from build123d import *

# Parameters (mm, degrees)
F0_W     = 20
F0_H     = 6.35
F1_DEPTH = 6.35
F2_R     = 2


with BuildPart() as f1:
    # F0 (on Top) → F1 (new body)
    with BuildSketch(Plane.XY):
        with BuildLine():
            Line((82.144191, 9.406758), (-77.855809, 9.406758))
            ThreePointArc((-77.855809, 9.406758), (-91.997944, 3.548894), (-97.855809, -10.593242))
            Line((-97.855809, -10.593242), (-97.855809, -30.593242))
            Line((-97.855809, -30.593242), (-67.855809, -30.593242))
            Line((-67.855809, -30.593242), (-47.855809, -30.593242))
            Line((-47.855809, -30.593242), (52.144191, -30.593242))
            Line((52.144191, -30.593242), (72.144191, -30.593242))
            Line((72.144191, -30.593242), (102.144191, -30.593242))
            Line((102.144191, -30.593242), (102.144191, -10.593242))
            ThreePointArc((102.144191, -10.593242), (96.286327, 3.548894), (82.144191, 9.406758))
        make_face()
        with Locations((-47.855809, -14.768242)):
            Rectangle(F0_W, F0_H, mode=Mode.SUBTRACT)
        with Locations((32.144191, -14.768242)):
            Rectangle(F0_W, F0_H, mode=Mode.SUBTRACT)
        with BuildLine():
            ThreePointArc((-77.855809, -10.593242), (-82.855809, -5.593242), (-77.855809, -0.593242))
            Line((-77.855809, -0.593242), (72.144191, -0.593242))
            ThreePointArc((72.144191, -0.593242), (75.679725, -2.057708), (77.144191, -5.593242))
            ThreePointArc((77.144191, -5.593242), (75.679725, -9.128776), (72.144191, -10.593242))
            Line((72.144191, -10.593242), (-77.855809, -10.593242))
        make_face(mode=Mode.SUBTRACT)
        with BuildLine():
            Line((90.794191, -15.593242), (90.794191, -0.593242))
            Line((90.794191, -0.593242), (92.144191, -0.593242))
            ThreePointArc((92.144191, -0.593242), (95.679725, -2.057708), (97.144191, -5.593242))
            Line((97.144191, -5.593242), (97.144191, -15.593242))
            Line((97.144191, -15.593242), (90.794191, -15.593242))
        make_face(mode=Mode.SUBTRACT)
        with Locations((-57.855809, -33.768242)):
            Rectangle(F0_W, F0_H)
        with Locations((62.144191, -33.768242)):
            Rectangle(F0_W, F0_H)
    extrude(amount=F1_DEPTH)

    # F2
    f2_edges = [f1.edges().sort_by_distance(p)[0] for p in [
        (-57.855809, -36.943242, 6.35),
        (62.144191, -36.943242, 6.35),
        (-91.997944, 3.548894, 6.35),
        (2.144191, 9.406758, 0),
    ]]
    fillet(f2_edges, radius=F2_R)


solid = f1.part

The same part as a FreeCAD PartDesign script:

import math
import FreeCAD as App
import Part
import Sketcher
Q = App.Units.Quantity


def edges_at(feature, points):
    """Names of the edges that pass closest to the given points."""
    edges = feature.Shape.Edges
    near = lambda p: min(range(len(edges)), key=lambda i: edges[i].distToShape(Part.Vertex(*p))[0])
    return sorted({f"Edge{near(p) + 1}" for p in points})

doc = App.newDocument("Part")
params = doc.addObject("Spreadsheet::Sheet", "Params")
for row, (alias, value) in enumerate([
    ("sketch1_radius", "20 mm"),
    ("sketch1_radius2", "5 mm"),
    ("sketch1_width", "160 mm"),
    ("sketch1_width2", "30 mm"),
    ("sketch1_width3", "20 mm"),
    ("pad1_length", "6.35 mm"),
    ("fillet_radius", "2 mm"),
], start=1):
    params.set(f"A{row}", alias)
    params.set(f"B{row}", "=" + value)
    params.setAlias(f"B{row}", alias)

body = doc.addObject("PartDesign::Body", "Body")

sketch1 = body.newObject("Sketcher::SketchObject", "Sketch")
sketch1.AttachmentSupport = (doc.getObject("XY_Plane"), [""])
sketch1.MapMode = "FlatFace"
sketch1.addGeometry(Part.LineSegment(App.Vector(82.144191, 9.406758, 0), App.Vector(-77.855809, 9.406758, 0)), False)
sketch1.addGeometry(Part.ArcOfCircle(Part.Circle(App.Vector(-77.855809, -10.593242, 0), App.Vector(0, 0, 1), 20), math.radians(90.000001), math.radians(179.999999)), False)
sketch1.addGeometry(Part.LineSegment(App.Vector(-97.855809, -10.593242, 0), App.Vector(-97.855809, -30.593242, 0)), False)
sketch1.addGeometry(Part.LineSegment(App.Vector(-97.855809, -30.593242, 0), App.Vector(-67.855809, -30.593242, 0)), False)
sketch1.addGeometry(Part.LineSegment(App.Vector(-67.855809, -30.593242, 0), App.Vector(-67.855809, -36.943242, 0)), False)
sketch1.addGeometry(Part.LineSegment(App.Vector(-67.855809, -36.943242, 0), App.Vector(-47.855809, -36.943242, 0)), False)
sketch1.addGeometry(Part.LineSegment(App.Vector(-47.855809, -36.943242, 0), App.Vector(-47.855809, -30.593242, 0)), False)
sketch1.addGeometry(Part.LineSegment(App.Vector(-47.855809, -30.593242, 0), App.Vector(52.144191, -30.593242, 0)), False)
sketch1.addGeometry(Part.LineSegment(App.Vector(52.144191, -30.593242, 0), App.Vector(52.144191, -36.943242, 0)), False)
sketch1.addGeometry(Part.LineSegment(App.Vector(52.144191, -36.943242, 0), App.Vector(72.144191, -36.943242, 0)), False)
sketch1.addGeometry(Part.LineSegment(App.Vector(72.144191, -36.943242, 0), App.Vector(72.144191, -30.593242, 0)), False)
sketch1.addGeometry(Part.LineSegment(App.Vector(72.144191, -30.593242, 0), App.Vector(102.144191, -30.593242, 0)), False)
sketch1.addGeometry(Part.LineSegment(App.Vector(102.144191, -30.593242, 0), App.Vector(102.144191, -10.593242, 0)), False)
sketch1.addGeometry(Part.ArcOfCircle(Part.Circle(App.Vector(82.144192, -10.593241, 0), App.Vector(0, 0, 1), 19.999999), math.radians(-0.000004), math.radians(90.000004)), False)
sketch1.addGeometry(Part.LineSegment(App.Vector(-37.855809, -17.943242, 0), App.Vector(-57.855809, -17.943242, 0)), False)
sketch1.addGeometry(Part.LineSegment(App.Vector(-57.855809, -17.943242, 0), App.Vector(-57.855809, -11.593242, 0)), False)
sketch1.addGeometry(Part.LineSegment(App.Vector(-57.855809, -11.593242, 0), App.Vector(-37.855809, -11.593242, 0)), False)
sketch1.addGeometry(Part.LineSegment(App.Vector(-37.855809, -11.593242, 0), App.Vector(-37.855809, -17.943242, 0)), False)
sketch1.addGeometry(Part.LineSegment(App.Vector(42.144191, -17.943242, 0), App.Vector(22.144191, -17.943242, 0)), False)
sketch1.addGeometry(Part.LineSegment(App.Vector(22.144191, -17.943242, 0), App.Vector(22.144191, -11.593242, 0)), False)
sketch1.addGeometry(Part.LineSegment(App.Vector(22.144191, -11.593242, 0), App.Vector(42.144191, -11.593242, 0)), False)
sketch1.addGeometry(Part.LineSegment(App.Vector(42.144191, -11.593242, 0), App.Vector(42.144191, -17.943242, 0)), False)
sketch1.addGeometry(Part.LineSegment(App.Vector(72.144191, -10.593242, 0), App.Vector(-77.855809, -10.593242, 0)), False)
sketch1.addGeometry(Part.ArcOfCircle(Part.Circle(App.Vector(-77.855809, -5.593242, 0), App.Vector(0, 0, 1), 5), math.radians(90), math.radians(270)), False)
sketch1.addGeometry(Part.LineSegment(App.Vector(-77.855809, -0.593242, 0), App.Vector(72.144191, -0.593242, 0)), False)
sketch1.addGeometry(Part.ArcOfCircle(Part.Circle(App.Vector(72.144191, -5.593242, 0), App.Vector(0, 0, 1), 5), math.radians(-0.000004), math.radians(90.000004)), False)
sketch1.addGeometry(Part.ArcOfCircle(Part.Circle(App.Vector(72.144191, -5.593242, 0), App.Vector(0, 0, 1), 5), math.radians(-90.000004), math.radians(0.000004)), False)
sketch1.addGeometry(Part.LineSegment(App.Vector(97.144191, -15.593242, 0), App.Vector(90.794191, -15.593242, 0)), False)
sketch1.addGeometry(Part.LineSegment(App.Vector(90.794191, -15.593242, 0), App.Vector(90.794191, -0.593242, 0)), False)
sketch1.addGeometry(Part.LineSegment(App.Vector(90.794191, -0.593242, 0), App.Vector(92.144191, -0.593242, 0)), False)
sketch1.addGeometry(Part.ArcOfCircle(Part.Circle(App.Vector(92.144191, -5.593242, 0), App.Vector(0, 0, 1), 5), math.radians(-0.000004), math.radians(90.000004)), False)
sketch1.addGeometry(Part.LineSegment(App.Vector(97.144191, -5.593242, 0), App.Vector(97.144191, -15.593242, 0)), False)
sketch1.addConstraint(Sketcher.Constraint("Tangent", 0, 2, 1, 1))
sketch1.addConstraint(Sketcher.Constraint("Tangent", 1, 2, 2, 1))
sketch1.addConstraint(Sketcher.Constraint("Coincident", 2, 2, 3, 1))
sketch1.addConstraint(Sketcher.Constraint("Coincident", 3, 2, 4, 1))
sketch1.addConstraint(Sketcher.Constraint("Coincident", 4, 2, 5, 1))
sketch1.addConstraint(Sketcher.Constraint("Coincident", 5, 2, 6, 1))
sketch1.addConstraint(Sketcher.Constraint("Coincident", 6, 2, 7, 1))
sketch1.addConstraint(Sketcher.Constraint("Coincident", 7, 2, 8, 1))
sketch1.addConstraint(Sketcher.Constraint("Coincident", 8, 2, 9, 1))
sketch1.addConstraint(Sketcher.Constraint("Coincident", 9, 2, 10, 1))
sketch1.addConstraint(Sketcher.Constraint("Coincident", 10, 2, 11, 1))
sketch1.addConstraint(Sketcher.Constraint("Coincident", 11, 2, 12, 1))
sketch1.addConstraint(Sketcher.Constraint("Tangent", 12, 2, 13, 1))
sketch1.addConstraint(Sketcher.Constraint("Tangent", 13, 2, 0, 1))
sketch1.addConstraint(Sketcher.Constraint("Coincident", 14, 2, 15, 1))
sketch1.addConstraint(Sketcher.Constraint("Coincident", 15, 2, 16, 1))
sketch1.addConstraint(Sketcher.Constraint("Coincident", 16, 2, 17, 1))
sketch1.addConstraint(Sketcher.Constraint("Coincident", 17, 2, 14, 1))
sketch1.addConstraint(Sketcher.Constraint("Coincident", 18, 2, 19, 1))
sketch1.addConstraint(Sketcher.Constraint("Coincident", 19, 2, 20, 1))
sketch1.addConstraint(Sketcher.Constraint("Coincident", 20, 2, 21, 1))
sketch1.addConstraint(Sketcher.Constraint("Coincident", 21, 2, 18, 1))
sketch1.addConstraint(Sketcher.Constraint("Tangent", 22, 2, 23, 2))
sketch1.addConstraint(Sketcher.Constraint("Tangent", 23, 1, 24, 1))
sketch1.addConstraint(Sketcher.Constraint("Tangent", 24, 2, 25, 2))
sketch1.addConstraint(Sketcher.Constraint("Tangent", 25, 1, 26, 2))
sketch1.addConstraint(Sketcher.Constraint("Tangent", 26, 1, 22, 1))
sketch1.addConstraint(Sketcher.Constraint("Coincident", 27, 2, 28, 1))
sketch1.addConstraint(Sketcher.Constraint("Coincident", 28, 2, 29, 1))
sketch1.addConstraint(Sketcher.Constraint("Tangent", 29, 2, 30, 2))
sketch1.addConstraint(Sketcher.Constraint("Tangent", 30, 1, 31, 1))
sketch1.addConstraint(Sketcher.Constraint("Coincident", 31, 2, 27, 1))
sketch1.addConstraint(Sketcher.Constraint("Horizontal", 0))
sketch1.addConstraint(Sketcher.Constraint("Vertical", 2))
sketch1.addConstraint(Sketcher.Constraint("Horizontal", 3))
sketch1.addConstraint(Sketcher.Constraint("Vertical", 4))
sketch1.addConstraint(Sketcher.Constraint("Horizontal", 5))
sketch1.addConstraint(Sketcher.Constraint("Vertical", 6))
sketch1.addConstraint(Sketcher.Constraint("Horizontal", 7))
sketch1.addConstraint(Sketcher.Constraint("Vertical", 8))
sketch1.addConstraint(Sketcher.Constraint("Horizontal", 9))
sketch1.addConstraint(Sketcher.Constraint("Vertical", 10))
sketch1.addConstraint(Sketcher.Constraint("Horizontal", 11))
sketch1.addConstraint(Sketcher.Constraint("Vertical", 12))
sketch1.addConstraint(Sketcher.Constraint("Horizontal", 14))
sketch1.addConstraint(Sketcher.Constraint("Vertical", 15))
sketch1.addConstraint(Sketcher.Constraint("Horizontal", 16))
sketch1.addConstraint(Sketcher.Constraint("Vertical", 17))
sketch1.addConstraint(Sketcher.Constraint("Horizontal", 18))
sketch1.addConstraint(Sketcher.Constraint("Vertical", 19))
sketch1.addConstraint(Sketcher.Constraint("Horizontal", 20))
sketch1.addConstraint(Sketcher.Constraint("Vertical", 21))
sketch1.addConstraint(Sketcher.Constraint("Horizontal", 22))
sketch1.addConstraint(Sketcher.Constraint("Horizontal", 24))
sketch1.addConstraint(Sketcher.Constraint("Horizontal", 27))
sketch1.addConstraint(Sketcher.Constraint("Vertical", 28))
sketch1.addConstraint(Sketcher.Constraint("Horizontal", 29))
sketch1.addConstraint(Sketcher.Constraint("Vertical", 31))
sketch1.addConstraint(Sketcher.Constraint("Coincident", 22, 2, 1, 3))
sketch1.addConstraint(Sketcher.Constraint("Equal", 1, 13))
sketch1.addConstraint(Sketcher.Constraint("Equal", 23, 25))
sketch1.addConstraint(Sketcher.Constraint("Equal", 26, 30))
sketch1.addConstraint(Sketcher.Constraint("Horizontal", 26, 3, 30, 3))
sketch1.addConstraint(Sketcher.Constraint("Horizontal", 3, 2, 6, 2))
sketch1.addConstraint(Sketcher.Constraint("Horizontal", 5, 2, 8, 2))
sketch1.addConstraint(Sketcher.Constraint("Horizontal", 7, 2, 10, 2))
sketch1.addConstraint(Sketcher.Constraint("Horizontal", 17, 2, 18, 2))
sketch1.addConstraint(Sketcher.Constraint("Horizontal", 16, 2, 19, 2))
sketch1.addConstraint(Sketcher.Constraint("Horizontal", 30, 3, 25, 1))
sketch1.addConstraint(Sketcher.Constraint("Vertical", 26, 3, 9, 2))
sketch1.addConstraint(Sketcher.Constraint("Equal", 5, 9))
sketch1.addConstraint(Sketcher.Constraint("Equal", 3, 11))
sketch1.addConstraint(Sketcher.Constraint("Equal", 9, 14))
sketch1.addConstraint(Sketcher.Constraint("Equal", 16, 18))
sketch1.addConstraint(Sketcher.Constraint("Equal", 20, 2))
sketch1.addConstraint(Sketcher.Constraint("Equal", 27, 4))
sketch1.addConstraint(Sketcher.Constraint("Equal", 10, 15))
sketch1.addConstraint(Sketcher.Constraint("Radius", 1, Q("20 mm")))
sketch1.addConstraint(Sketcher.Constraint("Radius", 23, Q("5 mm")))
sketch1.addConstraint(Sketcher.Constraint("DistanceX", 0, 2, 0, 1, Q("160 mm")))
sketch1.addConstraint(Sketcher.Constraint("DistanceX", 3, 1, 3, 2, Q("30 mm")))
sketch1.addConstraint(Sketcher.Constraint("DistanceX", 5, 1, 5, 2, Q("20 mm")))
sketch1.addConstraint(Sketcher.Constraint("DistanceY", 28, 1, 28, 2, Q("15 mm")))
sketch1.addConstraint(Sketcher.Constraint("DistanceX", 13, 3, 30, 3, Q("9.999999 mm")))
sketch1.addConstraint(Sketcher.Constraint("DistanceX", 3, 2, 14, 2, Q("10 mm")))
sketch1.addConstraint(Sketcher.Constraint("DistanceY", 4, 2, 14, 2, Q("19 mm")))
sketch1.addConstraint(Sketcher.Constraint("DistanceX", 18, 2, 7, 2, Q("30 mm")))
sketch1.addConstraint(Sketcher.Constraint("DistanceX", 27, 2, 27, 1, Q("6.35 mm")))
sketch1.addConstraint(Sketcher.Constraint("DistanceX", 1, 3, -1, 1, Q("77.855809 mm")))
sketch1.addConstraint(Sketcher.Constraint("DistanceY", 13, 3, -1, 1, Q("10.593241 mm")))
sketch1.setExpression("Constraints[77]", "Params.sketch1_radius")
sketch1.setExpression("Constraints[78]", "Params.sketch1_radius2")
sketch1.setExpression("Constraints[79]", "Params.sketch1_width")
sketch1.setExpression("Constraints[80]", "Params.sketch1_width2")
sketch1.setExpression("Constraints[81]", "Params.sketch1_width3")
pad1 = body.newObject("PartDesign::Pad", "Pad")
pad1.Profile = sketch1
pad1.setExpression("Length", "Params.pad1_length")
doc.recompute()

fillet = body.newObject("PartDesign::Fillet", "Fillet")
fillet.Base = (pad1, edges_at(pad1, [
    (-57.856, -36.943, 6.35),
    (62.144, -36.943, 6.35),
    (-91.998, 3.549, 6.35),
    (2.144, 9.407, 0),
]))
fillet.setExpression("Radius", "Params.fillet_radius")

doc.recompute()
